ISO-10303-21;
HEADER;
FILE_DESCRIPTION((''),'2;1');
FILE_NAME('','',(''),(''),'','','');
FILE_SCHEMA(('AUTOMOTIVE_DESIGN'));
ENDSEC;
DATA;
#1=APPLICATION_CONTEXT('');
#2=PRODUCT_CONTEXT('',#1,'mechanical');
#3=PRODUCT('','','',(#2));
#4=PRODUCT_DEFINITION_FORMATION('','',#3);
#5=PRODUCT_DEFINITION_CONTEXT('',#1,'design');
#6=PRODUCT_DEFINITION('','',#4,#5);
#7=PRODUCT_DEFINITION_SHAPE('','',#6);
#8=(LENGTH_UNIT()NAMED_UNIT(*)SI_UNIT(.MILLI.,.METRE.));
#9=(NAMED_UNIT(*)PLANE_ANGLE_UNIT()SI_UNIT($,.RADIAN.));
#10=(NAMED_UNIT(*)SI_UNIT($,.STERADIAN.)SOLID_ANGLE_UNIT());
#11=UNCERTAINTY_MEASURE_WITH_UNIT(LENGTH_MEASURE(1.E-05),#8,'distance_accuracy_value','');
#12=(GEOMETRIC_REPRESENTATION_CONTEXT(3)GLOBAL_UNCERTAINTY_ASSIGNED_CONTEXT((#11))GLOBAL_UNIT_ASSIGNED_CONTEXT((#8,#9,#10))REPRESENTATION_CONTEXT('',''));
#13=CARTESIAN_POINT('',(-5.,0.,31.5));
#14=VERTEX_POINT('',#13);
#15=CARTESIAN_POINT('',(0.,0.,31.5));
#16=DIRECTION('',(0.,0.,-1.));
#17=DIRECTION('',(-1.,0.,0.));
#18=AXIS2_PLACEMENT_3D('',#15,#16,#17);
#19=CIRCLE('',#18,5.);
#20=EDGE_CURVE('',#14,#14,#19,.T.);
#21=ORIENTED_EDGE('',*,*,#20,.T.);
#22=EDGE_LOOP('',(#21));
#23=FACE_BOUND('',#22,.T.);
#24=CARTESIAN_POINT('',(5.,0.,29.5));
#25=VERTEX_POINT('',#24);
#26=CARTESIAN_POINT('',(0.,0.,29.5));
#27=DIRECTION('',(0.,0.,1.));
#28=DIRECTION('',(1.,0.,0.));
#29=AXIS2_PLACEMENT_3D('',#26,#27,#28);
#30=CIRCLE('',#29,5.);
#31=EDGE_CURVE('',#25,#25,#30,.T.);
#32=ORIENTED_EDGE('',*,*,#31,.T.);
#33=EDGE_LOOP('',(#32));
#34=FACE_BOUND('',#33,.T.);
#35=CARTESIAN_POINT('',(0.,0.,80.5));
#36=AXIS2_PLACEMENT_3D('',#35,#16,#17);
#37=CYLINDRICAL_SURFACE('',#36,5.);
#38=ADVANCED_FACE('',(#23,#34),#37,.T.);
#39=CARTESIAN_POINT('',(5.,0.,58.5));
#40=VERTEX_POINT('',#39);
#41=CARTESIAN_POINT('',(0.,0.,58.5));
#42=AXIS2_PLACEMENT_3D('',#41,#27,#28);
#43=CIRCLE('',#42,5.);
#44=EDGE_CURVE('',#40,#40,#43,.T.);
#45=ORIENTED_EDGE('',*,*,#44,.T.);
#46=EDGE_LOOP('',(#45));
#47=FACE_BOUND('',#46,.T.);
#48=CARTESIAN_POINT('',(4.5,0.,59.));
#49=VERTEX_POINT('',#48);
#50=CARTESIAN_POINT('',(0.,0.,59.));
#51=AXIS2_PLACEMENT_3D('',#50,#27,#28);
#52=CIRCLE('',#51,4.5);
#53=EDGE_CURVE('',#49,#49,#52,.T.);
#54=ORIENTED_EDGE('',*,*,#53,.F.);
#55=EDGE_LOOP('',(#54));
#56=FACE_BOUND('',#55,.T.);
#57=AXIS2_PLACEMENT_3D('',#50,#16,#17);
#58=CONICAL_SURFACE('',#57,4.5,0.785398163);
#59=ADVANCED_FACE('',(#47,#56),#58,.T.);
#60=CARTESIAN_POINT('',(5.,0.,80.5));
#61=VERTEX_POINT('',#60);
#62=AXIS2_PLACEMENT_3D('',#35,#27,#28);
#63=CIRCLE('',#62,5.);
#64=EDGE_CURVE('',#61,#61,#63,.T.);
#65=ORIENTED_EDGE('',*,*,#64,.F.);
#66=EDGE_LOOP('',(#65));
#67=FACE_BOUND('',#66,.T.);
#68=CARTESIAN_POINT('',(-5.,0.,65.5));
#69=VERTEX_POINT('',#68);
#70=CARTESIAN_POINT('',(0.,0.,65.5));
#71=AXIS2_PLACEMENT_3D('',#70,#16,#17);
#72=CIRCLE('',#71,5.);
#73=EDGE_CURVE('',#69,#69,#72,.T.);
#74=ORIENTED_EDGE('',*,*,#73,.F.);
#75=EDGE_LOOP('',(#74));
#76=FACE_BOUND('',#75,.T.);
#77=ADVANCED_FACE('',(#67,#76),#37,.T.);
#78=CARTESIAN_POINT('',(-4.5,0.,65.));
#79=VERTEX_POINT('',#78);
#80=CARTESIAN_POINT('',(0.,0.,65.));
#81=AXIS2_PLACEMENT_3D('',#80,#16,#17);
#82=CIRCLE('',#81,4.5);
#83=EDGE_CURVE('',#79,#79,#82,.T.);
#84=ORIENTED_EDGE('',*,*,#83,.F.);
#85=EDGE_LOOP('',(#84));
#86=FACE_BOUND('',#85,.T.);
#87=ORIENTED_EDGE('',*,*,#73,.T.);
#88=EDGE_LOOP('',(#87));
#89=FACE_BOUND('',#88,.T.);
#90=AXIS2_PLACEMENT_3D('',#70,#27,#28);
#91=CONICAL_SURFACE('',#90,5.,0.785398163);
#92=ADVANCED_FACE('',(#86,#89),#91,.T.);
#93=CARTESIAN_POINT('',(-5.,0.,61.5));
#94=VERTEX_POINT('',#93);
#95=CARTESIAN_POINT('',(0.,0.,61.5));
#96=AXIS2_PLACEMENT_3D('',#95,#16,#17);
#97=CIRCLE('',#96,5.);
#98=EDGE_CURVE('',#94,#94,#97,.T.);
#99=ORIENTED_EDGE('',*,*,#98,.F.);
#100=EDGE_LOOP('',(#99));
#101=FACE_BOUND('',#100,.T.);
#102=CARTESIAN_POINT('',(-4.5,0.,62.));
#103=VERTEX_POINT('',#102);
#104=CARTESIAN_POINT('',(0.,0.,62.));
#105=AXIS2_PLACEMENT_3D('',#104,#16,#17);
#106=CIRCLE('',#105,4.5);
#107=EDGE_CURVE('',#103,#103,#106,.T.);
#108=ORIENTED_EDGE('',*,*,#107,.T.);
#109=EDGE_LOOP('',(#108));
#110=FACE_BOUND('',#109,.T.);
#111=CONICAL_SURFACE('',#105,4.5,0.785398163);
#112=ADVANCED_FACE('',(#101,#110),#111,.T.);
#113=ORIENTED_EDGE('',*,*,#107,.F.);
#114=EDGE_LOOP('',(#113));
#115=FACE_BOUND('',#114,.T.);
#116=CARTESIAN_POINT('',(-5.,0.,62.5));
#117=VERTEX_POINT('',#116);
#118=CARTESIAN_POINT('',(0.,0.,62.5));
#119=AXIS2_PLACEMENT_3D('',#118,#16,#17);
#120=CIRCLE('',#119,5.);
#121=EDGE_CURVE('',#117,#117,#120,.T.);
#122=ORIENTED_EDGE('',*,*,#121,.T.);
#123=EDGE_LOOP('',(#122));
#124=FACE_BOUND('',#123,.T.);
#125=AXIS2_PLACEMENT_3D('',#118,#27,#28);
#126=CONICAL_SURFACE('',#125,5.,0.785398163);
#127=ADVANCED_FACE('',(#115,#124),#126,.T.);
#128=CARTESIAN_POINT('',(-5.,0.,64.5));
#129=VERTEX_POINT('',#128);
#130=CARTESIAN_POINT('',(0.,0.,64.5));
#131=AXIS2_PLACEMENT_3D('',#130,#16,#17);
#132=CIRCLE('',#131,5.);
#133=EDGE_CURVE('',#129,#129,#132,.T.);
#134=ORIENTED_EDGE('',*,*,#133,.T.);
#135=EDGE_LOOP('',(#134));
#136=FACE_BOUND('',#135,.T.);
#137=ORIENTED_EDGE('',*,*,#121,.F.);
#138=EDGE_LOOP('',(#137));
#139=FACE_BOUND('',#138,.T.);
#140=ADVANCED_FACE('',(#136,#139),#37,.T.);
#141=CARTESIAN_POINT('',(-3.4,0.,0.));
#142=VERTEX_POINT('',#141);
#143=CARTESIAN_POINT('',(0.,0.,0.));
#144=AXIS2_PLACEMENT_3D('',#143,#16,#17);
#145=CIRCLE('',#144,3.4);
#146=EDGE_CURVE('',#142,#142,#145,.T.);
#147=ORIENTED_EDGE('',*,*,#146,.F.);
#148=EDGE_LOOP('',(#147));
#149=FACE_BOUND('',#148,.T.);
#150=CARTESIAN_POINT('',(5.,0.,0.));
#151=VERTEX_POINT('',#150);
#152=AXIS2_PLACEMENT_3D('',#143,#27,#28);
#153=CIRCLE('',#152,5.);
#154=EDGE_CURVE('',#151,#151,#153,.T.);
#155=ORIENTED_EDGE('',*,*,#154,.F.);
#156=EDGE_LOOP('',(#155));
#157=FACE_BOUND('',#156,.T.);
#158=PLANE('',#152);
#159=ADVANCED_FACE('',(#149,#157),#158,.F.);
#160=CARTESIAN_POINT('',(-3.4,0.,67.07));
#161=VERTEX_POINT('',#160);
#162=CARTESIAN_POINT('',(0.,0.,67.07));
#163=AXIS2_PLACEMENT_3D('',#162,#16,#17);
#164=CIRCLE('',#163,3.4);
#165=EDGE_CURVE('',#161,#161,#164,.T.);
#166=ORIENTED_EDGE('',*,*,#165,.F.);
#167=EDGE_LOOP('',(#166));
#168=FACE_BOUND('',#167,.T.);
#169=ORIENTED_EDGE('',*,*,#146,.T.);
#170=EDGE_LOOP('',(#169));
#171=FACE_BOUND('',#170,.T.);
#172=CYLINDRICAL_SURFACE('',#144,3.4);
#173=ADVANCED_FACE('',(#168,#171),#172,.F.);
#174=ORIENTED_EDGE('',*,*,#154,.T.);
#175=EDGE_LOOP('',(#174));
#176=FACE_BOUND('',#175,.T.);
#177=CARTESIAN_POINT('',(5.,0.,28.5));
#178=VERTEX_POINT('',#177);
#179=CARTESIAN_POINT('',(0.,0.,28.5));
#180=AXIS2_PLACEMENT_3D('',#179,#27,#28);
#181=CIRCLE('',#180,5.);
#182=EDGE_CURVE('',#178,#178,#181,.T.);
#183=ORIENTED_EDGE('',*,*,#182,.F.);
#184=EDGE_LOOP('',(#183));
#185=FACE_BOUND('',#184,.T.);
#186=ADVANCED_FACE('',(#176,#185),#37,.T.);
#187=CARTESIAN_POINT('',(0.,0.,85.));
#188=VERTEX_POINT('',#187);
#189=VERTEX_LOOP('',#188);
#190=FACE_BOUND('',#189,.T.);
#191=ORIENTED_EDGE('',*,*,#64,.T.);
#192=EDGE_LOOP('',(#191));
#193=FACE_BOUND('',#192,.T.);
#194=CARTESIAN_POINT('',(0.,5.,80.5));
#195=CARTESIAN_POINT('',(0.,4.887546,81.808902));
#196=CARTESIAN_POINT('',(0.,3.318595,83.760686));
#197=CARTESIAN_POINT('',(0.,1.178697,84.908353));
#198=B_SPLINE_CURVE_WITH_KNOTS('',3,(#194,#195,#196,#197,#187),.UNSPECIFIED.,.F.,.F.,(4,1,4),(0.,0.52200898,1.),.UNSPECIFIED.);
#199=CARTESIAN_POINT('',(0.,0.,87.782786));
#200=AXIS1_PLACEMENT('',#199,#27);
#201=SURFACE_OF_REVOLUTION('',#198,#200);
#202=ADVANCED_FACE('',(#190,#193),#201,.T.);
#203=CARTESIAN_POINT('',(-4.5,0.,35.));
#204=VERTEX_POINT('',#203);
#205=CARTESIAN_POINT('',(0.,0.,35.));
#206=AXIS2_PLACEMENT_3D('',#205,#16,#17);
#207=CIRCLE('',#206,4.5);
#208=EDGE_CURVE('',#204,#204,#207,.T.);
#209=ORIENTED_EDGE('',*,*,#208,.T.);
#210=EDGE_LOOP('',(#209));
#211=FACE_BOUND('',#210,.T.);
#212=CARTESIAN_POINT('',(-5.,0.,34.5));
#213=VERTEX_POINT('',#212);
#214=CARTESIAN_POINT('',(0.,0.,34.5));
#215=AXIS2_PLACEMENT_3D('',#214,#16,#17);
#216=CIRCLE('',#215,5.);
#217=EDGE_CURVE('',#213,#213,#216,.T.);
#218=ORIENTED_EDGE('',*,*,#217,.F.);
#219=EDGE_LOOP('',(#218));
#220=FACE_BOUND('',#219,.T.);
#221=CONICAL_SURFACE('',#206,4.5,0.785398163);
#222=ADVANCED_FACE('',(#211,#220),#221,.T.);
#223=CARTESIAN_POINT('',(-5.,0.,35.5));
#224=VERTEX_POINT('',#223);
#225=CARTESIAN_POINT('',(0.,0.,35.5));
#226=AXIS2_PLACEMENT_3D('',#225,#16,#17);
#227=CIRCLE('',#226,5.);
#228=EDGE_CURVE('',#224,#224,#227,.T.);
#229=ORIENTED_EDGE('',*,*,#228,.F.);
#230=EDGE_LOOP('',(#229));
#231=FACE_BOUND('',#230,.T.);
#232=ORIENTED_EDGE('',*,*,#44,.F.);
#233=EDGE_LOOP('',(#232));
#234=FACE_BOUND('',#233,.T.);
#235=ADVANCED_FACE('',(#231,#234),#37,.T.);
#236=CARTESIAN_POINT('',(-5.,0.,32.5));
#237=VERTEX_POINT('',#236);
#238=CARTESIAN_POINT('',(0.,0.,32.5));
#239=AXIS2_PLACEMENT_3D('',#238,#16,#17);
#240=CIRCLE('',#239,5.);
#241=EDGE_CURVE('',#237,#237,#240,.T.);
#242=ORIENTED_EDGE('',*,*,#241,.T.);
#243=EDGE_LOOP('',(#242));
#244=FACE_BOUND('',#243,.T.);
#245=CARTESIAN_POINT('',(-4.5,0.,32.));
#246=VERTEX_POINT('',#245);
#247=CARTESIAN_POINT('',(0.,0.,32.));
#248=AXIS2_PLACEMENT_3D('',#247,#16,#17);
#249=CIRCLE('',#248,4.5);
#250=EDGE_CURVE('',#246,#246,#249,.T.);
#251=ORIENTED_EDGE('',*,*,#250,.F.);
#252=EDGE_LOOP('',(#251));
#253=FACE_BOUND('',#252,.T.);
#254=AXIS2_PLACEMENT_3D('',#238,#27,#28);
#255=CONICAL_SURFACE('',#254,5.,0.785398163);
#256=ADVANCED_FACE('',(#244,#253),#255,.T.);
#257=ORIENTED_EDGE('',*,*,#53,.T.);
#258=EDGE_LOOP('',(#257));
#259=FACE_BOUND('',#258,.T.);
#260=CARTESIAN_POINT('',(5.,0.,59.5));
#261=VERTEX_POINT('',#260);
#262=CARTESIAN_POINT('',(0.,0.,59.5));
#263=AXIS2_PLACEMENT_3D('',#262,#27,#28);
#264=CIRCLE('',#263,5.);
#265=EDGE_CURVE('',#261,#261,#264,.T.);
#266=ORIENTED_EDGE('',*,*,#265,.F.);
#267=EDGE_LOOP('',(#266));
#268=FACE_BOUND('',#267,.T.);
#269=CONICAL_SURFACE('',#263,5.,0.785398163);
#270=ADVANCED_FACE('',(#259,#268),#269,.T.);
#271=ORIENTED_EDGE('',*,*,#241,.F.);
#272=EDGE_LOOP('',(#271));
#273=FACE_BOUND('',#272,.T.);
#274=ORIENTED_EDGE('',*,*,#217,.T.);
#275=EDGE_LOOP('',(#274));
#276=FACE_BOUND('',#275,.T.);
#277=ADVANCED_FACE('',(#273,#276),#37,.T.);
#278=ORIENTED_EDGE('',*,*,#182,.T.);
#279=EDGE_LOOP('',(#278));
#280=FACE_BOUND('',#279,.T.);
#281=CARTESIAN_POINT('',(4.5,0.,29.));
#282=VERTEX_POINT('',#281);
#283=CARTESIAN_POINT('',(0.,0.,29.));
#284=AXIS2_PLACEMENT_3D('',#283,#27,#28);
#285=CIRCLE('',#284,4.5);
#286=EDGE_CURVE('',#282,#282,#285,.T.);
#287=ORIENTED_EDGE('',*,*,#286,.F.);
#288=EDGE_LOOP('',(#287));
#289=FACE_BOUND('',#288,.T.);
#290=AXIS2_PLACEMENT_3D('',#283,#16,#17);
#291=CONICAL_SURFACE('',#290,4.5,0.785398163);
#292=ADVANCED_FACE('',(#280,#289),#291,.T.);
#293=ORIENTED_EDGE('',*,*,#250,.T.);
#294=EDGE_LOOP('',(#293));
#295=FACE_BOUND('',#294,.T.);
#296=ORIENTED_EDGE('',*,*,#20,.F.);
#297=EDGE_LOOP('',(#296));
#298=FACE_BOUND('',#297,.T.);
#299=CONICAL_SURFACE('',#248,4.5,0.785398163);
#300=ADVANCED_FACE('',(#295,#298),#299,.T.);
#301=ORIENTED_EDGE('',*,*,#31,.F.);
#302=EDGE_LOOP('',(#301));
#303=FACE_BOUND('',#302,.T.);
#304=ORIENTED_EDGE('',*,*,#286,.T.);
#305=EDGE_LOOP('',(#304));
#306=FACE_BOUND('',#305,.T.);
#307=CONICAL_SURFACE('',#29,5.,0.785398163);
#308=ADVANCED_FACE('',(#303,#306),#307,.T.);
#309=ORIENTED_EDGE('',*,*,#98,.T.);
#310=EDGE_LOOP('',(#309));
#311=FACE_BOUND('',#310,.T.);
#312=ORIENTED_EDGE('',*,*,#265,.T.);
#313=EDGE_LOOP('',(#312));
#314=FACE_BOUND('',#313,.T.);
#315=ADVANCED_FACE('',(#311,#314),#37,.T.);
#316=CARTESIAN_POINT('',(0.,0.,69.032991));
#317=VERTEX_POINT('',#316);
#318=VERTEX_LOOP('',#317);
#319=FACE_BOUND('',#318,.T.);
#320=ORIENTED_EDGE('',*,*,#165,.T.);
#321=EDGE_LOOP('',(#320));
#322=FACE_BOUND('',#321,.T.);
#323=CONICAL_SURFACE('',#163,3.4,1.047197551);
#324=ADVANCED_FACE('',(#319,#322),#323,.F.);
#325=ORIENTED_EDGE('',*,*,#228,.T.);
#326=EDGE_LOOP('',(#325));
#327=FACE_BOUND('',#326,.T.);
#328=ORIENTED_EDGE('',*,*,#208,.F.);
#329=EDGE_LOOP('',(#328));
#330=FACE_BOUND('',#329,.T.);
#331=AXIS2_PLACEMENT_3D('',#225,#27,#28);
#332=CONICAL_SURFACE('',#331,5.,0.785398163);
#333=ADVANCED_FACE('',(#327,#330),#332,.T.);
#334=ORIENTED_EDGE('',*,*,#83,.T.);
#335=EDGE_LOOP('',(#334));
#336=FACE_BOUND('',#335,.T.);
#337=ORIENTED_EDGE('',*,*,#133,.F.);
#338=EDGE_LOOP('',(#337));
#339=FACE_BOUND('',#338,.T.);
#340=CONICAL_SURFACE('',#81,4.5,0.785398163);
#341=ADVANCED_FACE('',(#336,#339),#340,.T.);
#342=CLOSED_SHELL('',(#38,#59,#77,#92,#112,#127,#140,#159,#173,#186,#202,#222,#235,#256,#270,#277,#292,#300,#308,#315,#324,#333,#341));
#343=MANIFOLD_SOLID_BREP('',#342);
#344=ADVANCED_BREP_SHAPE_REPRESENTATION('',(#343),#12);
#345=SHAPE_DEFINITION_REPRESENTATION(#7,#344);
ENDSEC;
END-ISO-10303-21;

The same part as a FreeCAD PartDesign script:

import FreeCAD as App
import Part
import Sketcher
from FreeCAD import Vector

doc = App.newDocument("Part")
params = doc.addObject("Spreadsheet::Sheet", "Params")
for row, (alias, value) in enumerate([
    ("sketch1_diameter", "10 mm"),
    ("pad1_length", "80.5 mm"),
    ("sketch2_height", "1 mm"),
    ("groove_angle", "360 deg"),
    ("sketch3_height", "1 mm"),
    ("groove2_angle", "360 deg"),
    ("linearpattern_pitch", "30 mm"),
    ("revolution_angle", "360 deg"),
    ("sketch5_diameter", "6.8 mm"),
    ("hole_diameter", "6.8 mm"),
    ("hole_depth", "67.07 mm"),
], start=1):
    params.set(f"A{row}", alias)
    params.set(f"B{row}", "=" + value)
    params.setAlias(f"B{row}", alias)

body = doc.addObject("PartDesign::Body", "Body")

# Sketch on XY plane
sketch1 = body.newObject("Sketcher::SketchObject", "Sketch")
sketch1.AttachmentSupport = (doc.getObject("XY_Plane"), [""])
sketch1.MapMode = "FlatFace"
sketch1.addGeometry(Part.Circle(Vector(0, 0, 0), Vector(0, 0, 1), 5), False)
sketch1.addConstraint([
    Sketcher.Constraint("Coincident", 0, 3, -1, 1),
    Sketcher.Constraint("Diameter", 0, 10.0),
])
sketch1.setExpression("Constraints[1]", "Params.sketch1_diameter")
pad1 = body.newObject("PartDesign::Pad", "Pad")
pad1.Profile = sketch1
pad1.setExpression("Length", "Params.pad1_length")

# Sketch on YZ plane
sketch2 = body.newObject("Sketcher::SketchObject", "Sketch001")
sketch2.AttachmentSupport = (doc.getObject("YZ_Plane"), [""])
sketch2.MapMode = "FlatFace"
sketch2.addGeometry([
    Part.LineSegment(Vector(4.5, 29, 0), Vector(5, 28.5, 0)),
    Part.LineSegment(Vector(5, 28.5, 0), Vector(5, 29.5, 0)),
    Part.LineSegment(Vector(5, 29.5, 0), Vector(4.5, 29, 0)),
], False)
sketch2.addConstraint([
    Sketcher.Constraint("Coincident", 0, 2, 1, 1),
    Sketcher.Constraint("Coincident", 1, 2, 2, 1),
    Sketcher.Constraint("Coincident", 2, 2, 0, 1),
    Sketcher.Constraint("Vertical", 1),
    Sketcher.Constraint("Perpendicular", 0, 2),
    Sketcher.Constraint("Equal", 0, 2),
    Sketcher.Constraint("DistanceY", 1, 1, 1, 2, 1.0),
    Sketcher.Constraint("DistanceX", -1, 1, 0, 2, 5.0),
    Sketcher.Constraint("DistanceY", -1, 1, 2, 2, 29.0),
])
sketch2.setExpression("Constraints[6]", "Params.sketch2_height")
groove = body.newObject("PartDesign::Groove", "Groove")
groove.Profile = sketch2
groove.ReferenceAxis = (sketch2, ["V_Axis"])
groove.setExpression("Angle", "Params.groove_angle")

# Sketch on YZ plane
sketch3 = body.newObject("Sketcher::SketchObject", "Sketch002")
sketch3.AttachmentSupport = (doc.getObject("YZ_Plane"), [""])
sketch3.MapMode = "FlatFace"
sketch3.addGeometry([
    Part.LineSegment(Vector(4.5, 32, 0), Vector(5, 31.5, 0)),  # 0
    Part.LineSegment(Vector(5, 31.5, 0), Vector(5, 32.5, 0)),  # 1
    Part.LineSegment(Vector(5, 32.5, 0), Vector(4.5, 32, 0)),  # 2
    Part.LineSegment(Vector(4.5, 35, 0), Vector(5, 34.5, 0)),  # 3
    Part.LineSegment(Vector(5, 34.5, 0), Vector(5, 35.5, 0)),  # 4
    Part.LineSegment(Vector(5, 35.5, 0), Vector(4.5, 35, 0)),  # 5
], False)
sketch3.addConstraint([
    Sketcher.Constraint("Coincident", 0, 2, 1, 1),
    Sketcher.Constraint("Coincident", 1, 2, 2, 1),
    Sketcher.Constraint("Coincident", 2, 2, 0, 1),
    Sketcher.Constraint("Coincident", 3, 2, 4, 1),
    Sketcher.Constraint("Coincident", 4, 2, 5, 1),
    Sketcher.Constraint("Coincident", 5, 2, 3, 1),
    Sketcher.Constraint("Vertical", 1),
    Sketcher.Constraint("Vertical", 4),
    Sketcher.Constraint("Perpendicular", 0, 2),
    Sketcher.Constraint("Perpendicular", 2, 3),
    Sketcher.Constraint("Perpendicular", 3, 5),
    Sketcher.Constraint("Vertical", 1, 2, 3, 2),
    Sketcher.Constraint("Vertical", 2, 2, 5, 2),
    Sketcher.Constraint("Equal", 0, 2),
    Sketcher.Constraint("DistanceY", 1, 1, 1, 2, 1.0),
    Sketcher.Constraint("DistanceX", -1, 1, 0, 2, 5.0),
    Sketcher.Constraint("DistanceY", -1, 1, 2, 2, 32.0),
    Sketcher.Constraint("DistanceY", -1, 1, 5, 2, 35.0),
])
sketch3.setExpression("Constraints[14]", "Params.sketch3_height")
groove2 = body.newObject("PartDesign::Groove", "Groove001")
groove2.Profile = sketch3
groove2.ReferenceAxis = (sketch3, ["V_Axis"])
groove2.setExpression("Angle", "Params.groove2_angle")
doc.recompute()

linearpattern = body.newObject("PartDesign::LinearPattern", "LinearPattern")
linearpattern.Originals = [groove, groove2]
linearpattern.Direction = (doc.getObject("Z_Axis"), [""])
linearpattern.Mode = "offset"
linearpattern.setExpression("Offset", "Params.linearpattern_pitch")
linearpattern.Occurrences = 2
body.Tip = linearpattern

# Sketch on YZ plane
sketch4 = body.newObject("Sketcher::SketchObject", "Sketch003")
sketch4.AttachmentSupport = (doc.getObject("YZ_Plane"), [""])
sketch4.MapMode = "FlatFace"
sketch4.addGeometry([
    Part.LineSegment(Vector(0, 80.5, 0), Vector(5, 80.5, 0)),
    Part.BSplineCurve([Vector(5, 80.5, 0), Vector(4.887546, 81.808902, 0), Vector(3.318595, 83.760686, 0), Vector(1.178697, 84.908353, 0), Vector(0, 85, 0)], [4, 1, 4], [0, 0.52200898, 1], False, 3, [1, 1, 1, 1, 1], False),
    Part.LineSegment(Vector(0, 85, 0), Vector(0, 80.5, 0)),
], False)
sketch4.addConstraint([
    Sketcher.Constraint("Block", 1),
    Sketcher.Constraint("Coincident", 0, 2, 1, 1),
    Sketcher.Constraint("Coincident", 1, 2, 2, 1),
    Sketcher.Constraint("Coincident", 2, 2, 0, 1),
    Sketcher.Constraint("Horizontal", 0),
    Sketcher.Constraint("Vertical", 2),
])
revolution = body.newObject("PartDesign::Revolution", "Revolution")
revolution.Profile = sketch4
revolution.ReferenceAxis = (sketch4, ["V_Axis"])
revolution.setExpression("Angle", "Params.revolution_angle")

# Sketch on XY plane
sketch5 = body.newObject("Sketcher::SketchObject", "Sketch004")
sketch5.AttachmentSupport = (doc.getObject("XY_Plane"), [""])
sketch5.MapMode = "FlatFace"
sketch5.addGeometry(Part.Circle(Vector(0, 0, 0), Vector(0, 0, 1), 3.4), False)
sketch5.addConstraint([
    Sketcher.Constraint("Coincident", 0, 3, -1, 1),
    Sketcher.Constraint("Diameter", 0, 6.8),
])
sketch5.setExpression("Constraints[1]", "Params.sketch5_diameter")
doc.recompute()
hole = body.newObject("PartDesign::Hole", "Hole")
hole.Profile = sketch5
hole.ThreadType = "None"
hole.setExpression("Diameter", "Params.hole_diameter")
hole.DepthType = "Dimension"
hole.setExpression("Depth", "Params.hole_depth")
hole.DrillPoint = "Angled"
hole.DrillPointAngle = 120
hole.Reversed = True

doc.recompute()
